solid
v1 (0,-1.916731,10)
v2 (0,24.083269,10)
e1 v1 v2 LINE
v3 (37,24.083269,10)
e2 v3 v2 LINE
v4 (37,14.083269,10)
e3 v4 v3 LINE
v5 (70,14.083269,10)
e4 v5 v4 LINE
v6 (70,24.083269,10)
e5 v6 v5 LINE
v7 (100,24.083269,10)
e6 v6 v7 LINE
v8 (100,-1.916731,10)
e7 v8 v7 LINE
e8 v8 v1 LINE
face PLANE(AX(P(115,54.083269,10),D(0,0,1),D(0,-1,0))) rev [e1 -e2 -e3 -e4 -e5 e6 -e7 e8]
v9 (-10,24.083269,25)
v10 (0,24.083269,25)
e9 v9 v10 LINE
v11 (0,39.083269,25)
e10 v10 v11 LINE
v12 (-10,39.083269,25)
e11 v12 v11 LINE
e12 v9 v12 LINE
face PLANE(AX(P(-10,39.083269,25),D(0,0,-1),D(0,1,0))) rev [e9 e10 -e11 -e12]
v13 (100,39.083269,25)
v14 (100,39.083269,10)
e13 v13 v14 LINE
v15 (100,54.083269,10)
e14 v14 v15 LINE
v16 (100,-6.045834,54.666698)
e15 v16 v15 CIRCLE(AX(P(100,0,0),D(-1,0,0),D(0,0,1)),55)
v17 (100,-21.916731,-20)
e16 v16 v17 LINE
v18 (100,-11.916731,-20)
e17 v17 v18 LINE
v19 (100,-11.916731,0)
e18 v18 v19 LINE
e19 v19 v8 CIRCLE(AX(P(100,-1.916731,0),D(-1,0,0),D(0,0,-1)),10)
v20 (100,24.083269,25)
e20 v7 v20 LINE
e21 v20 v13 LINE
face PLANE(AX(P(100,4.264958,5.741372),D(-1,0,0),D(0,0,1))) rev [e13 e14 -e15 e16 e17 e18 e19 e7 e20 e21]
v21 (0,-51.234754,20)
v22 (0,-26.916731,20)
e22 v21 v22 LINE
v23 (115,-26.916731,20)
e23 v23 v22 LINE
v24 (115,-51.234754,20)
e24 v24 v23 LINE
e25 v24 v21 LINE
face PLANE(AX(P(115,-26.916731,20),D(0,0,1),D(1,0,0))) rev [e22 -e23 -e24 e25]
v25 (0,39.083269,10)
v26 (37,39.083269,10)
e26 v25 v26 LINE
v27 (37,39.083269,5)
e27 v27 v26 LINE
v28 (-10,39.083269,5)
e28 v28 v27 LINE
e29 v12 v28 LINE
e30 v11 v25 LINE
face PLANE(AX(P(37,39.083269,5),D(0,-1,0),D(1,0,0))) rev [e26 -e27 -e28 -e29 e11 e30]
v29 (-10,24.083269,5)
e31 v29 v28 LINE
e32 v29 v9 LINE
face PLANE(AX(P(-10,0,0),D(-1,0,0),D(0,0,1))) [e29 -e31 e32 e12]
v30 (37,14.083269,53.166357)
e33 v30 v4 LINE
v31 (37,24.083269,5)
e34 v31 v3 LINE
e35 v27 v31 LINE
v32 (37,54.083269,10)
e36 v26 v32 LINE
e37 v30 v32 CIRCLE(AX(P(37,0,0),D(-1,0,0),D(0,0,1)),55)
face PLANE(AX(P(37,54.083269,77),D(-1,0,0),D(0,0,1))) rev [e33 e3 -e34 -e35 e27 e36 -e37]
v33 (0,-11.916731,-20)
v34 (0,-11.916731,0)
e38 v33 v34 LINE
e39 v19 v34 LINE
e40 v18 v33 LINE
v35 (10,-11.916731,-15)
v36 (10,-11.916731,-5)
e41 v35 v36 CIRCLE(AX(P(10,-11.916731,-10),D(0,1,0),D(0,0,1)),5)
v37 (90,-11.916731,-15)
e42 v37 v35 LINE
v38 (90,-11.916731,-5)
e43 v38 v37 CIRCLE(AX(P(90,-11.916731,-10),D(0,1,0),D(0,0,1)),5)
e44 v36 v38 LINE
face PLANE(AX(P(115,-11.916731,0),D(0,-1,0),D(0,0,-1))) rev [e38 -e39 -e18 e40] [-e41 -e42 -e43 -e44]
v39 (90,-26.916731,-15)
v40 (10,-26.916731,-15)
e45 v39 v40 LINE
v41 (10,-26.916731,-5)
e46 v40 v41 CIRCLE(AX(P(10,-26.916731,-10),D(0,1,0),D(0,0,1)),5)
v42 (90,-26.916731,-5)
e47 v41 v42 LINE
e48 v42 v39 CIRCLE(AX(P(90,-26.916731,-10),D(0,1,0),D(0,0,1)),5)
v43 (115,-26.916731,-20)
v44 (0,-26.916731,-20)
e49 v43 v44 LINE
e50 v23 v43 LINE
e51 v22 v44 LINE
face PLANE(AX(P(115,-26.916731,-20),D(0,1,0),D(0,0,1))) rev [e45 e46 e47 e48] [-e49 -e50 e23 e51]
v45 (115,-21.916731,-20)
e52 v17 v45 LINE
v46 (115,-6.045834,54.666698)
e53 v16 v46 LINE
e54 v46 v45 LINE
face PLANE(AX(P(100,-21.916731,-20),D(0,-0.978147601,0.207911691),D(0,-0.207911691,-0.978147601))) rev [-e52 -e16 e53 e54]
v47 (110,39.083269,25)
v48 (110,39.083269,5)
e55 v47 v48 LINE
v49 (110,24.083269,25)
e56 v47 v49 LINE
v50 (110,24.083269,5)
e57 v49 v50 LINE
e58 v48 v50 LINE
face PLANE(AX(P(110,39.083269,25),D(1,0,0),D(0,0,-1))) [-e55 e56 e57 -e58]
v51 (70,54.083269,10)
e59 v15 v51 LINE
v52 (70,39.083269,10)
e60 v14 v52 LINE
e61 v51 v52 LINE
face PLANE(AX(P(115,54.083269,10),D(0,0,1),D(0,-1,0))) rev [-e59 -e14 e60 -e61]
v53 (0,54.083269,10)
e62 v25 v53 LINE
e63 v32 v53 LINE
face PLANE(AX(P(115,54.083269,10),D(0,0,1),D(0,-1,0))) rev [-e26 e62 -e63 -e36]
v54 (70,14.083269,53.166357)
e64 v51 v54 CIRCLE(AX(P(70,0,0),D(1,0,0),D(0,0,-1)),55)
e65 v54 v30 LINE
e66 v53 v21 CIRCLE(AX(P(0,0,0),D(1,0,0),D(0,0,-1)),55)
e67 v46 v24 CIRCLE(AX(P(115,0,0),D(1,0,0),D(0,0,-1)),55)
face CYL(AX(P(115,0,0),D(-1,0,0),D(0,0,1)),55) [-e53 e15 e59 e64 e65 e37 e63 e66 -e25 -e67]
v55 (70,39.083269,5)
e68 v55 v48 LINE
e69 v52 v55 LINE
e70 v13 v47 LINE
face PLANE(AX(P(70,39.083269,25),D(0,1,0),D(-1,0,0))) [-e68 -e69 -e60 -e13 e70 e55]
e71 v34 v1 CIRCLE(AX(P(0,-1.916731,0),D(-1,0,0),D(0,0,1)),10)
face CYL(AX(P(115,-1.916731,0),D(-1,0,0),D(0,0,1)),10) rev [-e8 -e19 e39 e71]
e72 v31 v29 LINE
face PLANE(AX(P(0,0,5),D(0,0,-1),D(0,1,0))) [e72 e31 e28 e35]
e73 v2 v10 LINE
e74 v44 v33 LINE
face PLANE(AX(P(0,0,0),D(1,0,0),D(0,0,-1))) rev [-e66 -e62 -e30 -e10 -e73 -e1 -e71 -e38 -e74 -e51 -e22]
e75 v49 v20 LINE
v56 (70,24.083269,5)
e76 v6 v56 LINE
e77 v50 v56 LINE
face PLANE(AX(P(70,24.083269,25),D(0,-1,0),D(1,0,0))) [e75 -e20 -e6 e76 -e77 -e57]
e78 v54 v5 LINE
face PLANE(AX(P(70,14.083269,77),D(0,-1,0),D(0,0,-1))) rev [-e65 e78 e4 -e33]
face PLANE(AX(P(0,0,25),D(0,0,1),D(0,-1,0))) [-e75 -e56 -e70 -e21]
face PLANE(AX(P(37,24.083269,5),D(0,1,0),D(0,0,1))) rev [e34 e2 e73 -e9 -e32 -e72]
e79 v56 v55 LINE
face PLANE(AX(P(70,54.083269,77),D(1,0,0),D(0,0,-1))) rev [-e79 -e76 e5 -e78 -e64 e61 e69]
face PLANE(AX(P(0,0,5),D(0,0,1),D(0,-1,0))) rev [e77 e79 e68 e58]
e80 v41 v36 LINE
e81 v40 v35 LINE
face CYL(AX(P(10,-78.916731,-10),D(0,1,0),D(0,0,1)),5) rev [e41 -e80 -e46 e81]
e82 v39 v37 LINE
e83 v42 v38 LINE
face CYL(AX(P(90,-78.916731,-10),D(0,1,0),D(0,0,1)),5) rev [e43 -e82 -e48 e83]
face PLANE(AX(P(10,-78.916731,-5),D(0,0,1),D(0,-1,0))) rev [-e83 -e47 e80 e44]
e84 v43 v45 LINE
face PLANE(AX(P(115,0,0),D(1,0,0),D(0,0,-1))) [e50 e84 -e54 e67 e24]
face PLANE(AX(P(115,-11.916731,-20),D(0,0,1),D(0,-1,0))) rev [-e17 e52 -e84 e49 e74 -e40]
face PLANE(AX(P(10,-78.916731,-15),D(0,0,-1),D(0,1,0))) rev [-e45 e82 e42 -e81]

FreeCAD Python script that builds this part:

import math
import FreeCAD as App
import Part
import Sketcher
from FreeCAD import Vector
Q = App.Units.Quantity


def add_polygon(sketch, points):
    """Adds a closed chain of lines whose ends are joined by coincident constraints."""
    first, n = sketch.GeometryCount, len(points)
    for a, b in zip(points, points[1:] + points[:1]):
        sketch.addGeometry(Part.LineSegment(App.Vector(*a, 0), App.Vector(*b, 0)), False)
    for i in range(n):
        sketch.addConstraint(Sketcher.Constraint("Coincident", first + i, 2, first + (i + 1) % n, 1))

doc = App.newDocument("Part")
params = doc.addObject("Spreadsheet::Sheet", "Params")
for row, (alias, value) in enumerate([
    ("sketch1_radius", "55 mm"),
    ("sketch1_radius2", "10 mm"),
    ("sketch1_width", "56 mm"),
    ("sketch1_width2", "15 mm"),
    ("sketch1_height", "40 mm"),
    ("pad1_length", "115 mm"),
    ("sketch2_radius", "10 mm"),
    ("sketch2_radius2", "50 mm"),
    ("sketch2_width", "10 mm"),
    ("sketch2_width2", "56 mm"),
    ("sketch2_height", "20 mm"),
    ("pocket1_length", "15 mm"),
    ("sketch3_radius", "5 mm"),
    ("sketch3_width", "80 mm"),
    ("pocket2_length", "67 mm"),
    ("sketch4_width", "33 mm"),
    ("sketch4_height", "40 mm"),
    ("pocket3_length", "67 mm"),
    ("sketch5_width", "40 mm"),
    ("sketch5_height", "15 mm"),
    ("pad2_length", "5 mm"),
    ("sketch6_width", "15 mm"),
    ("pad3_length", "10 mm"),
    ("sketch7_width", "7 mm"),
    ("sketch7_height", "15 mm"),
    ("pad4_length", "5 mm"),
    ("sketch8_width", "40 mm"),
    ("sketch8_height", "15 mm"),
    ("pad5_length", "5 mm"),
    ("pad5_length2", "15 mm"),
], start=1):
    params.set(f"A{row}", alias)
    params.set(f"B{row}", "=" + value)
    params.setAlias(f"B{row}", alias)

body = doc.addObject("PartDesign::Body", "Body")

# Sketch on YZ plane
sketch1 = body.newObject("Sketcher::SketchObject", "Sketch")
sketch1.AttachmentSupport = (doc.getObject("YZ_Plane"), [""])
sketch1.MapMode = "FlatFace"
sketch1.addGeometry([
    Part.LineSegment(Vector(-2, 10, 0), Vector(54, 10, 0)),  # 0
    Part.ArcOfCircle(Part.Circle(Vector(0, 0, 0), Vector(0, 0, 1), 55), math.radians(10), math.radians(159)),  # 1
    Part.LineSegment(Vector(-51, 20, 0), Vector(-27, 20, 0)),  # 2
    Part.LineSegment(Vector(-27, 20, 0), Vector(-27, -20, 0)),  # 3
    Part.LineSegment(Vector(-27, -20, 0), Vector(-12, -20, 0)),  # 4
    Part.LineSegment(Vector(-12, -20, 0), Vector(-12, 0, 0)),  # 5
    Part.ArcOfCircle(Part.Circle(Vector(-2, 0, 0), Vector(0, 0, 1), 10), math.radians(90), math.radians(180)),  # 6
], False)
sketch1.addConstraint([
    Sketcher.Constraint("Coincident", 0, 2, 1, 1),
    Sketcher.Constraint("Coincident", 1, 2, 2, 1),
    Sketcher.Constraint("Coincident", 2, 2, 3, 1),
    Sketcher.Constraint("Coincident", 3, 2, 4, 1),
    Sketcher.Constraint("Coincident", 4, 2, 5, 1),
    Sketcher.Constraint("Tangent", 5, 2, 6, 2),
    Sketcher.Constraint("Tangent", 6, 1, 0, 1),
    Sketcher.Constraint("Horizontal", 0),
    Sketcher.Constraint("Horizontal", 2),
    Sketcher.Constraint("Vertical", 3),
    Sketcher.Constraint("Horizontal", 4),
    Sketcher.Constraint("Vertical", 5),
    Sketcher.Constraint("Coincident", 1, 3, -1, 1),
    Sketcher.Constraint("PointOnObject", 6, 3, -1),
    Sketcher.Constraint("Radius", 1, Q("55 mm")),
    Sketcher.Constraint("Radius", 6, Q("10 mm")),
    Sketcher.Constraint("DistanceX", 0, 1, 0, 2, Q("56 mm")),
    Sketcher.Constraint("DistanceX", 4, 1, 4, 2, Q("15 mm")),
    Sketcher.Constraint("DistanceY", 3, 2, 3, 1, Q("40 mm")),
    Sketcher.Constraint("DistanceY", 5, 1, 5, 2, Q("20 mm")),
])
sketch1.setExpression("Constraints[14]", "Params.sketch1_radius")
sketch1.setExpression("Constraints[15]", "Params.sketch1_radius2")
sketch1.setExpression("Constraints[16]", "Params.sketch1_width")
sketch1.setExpression("Constraints[17]", "Params.sketch1_width2")
sketch1.setExpression("Constraints[18]", "Params.sketch1_height")
pad1 = body.newObject("PartDesign::Pad", "Pad")
pad1.Profile = sketch1
pad1.setExpression("Length", "Params.pad1_length")

# Sketch on YZ plane
sketch2 = body.newObject("Sketcher::SketchObject", "Sketch001")
sketch2.AttachmentSupport = (doc.getObject("YZ_Plane"), [""])
sketch2.MapMode = "FlatFace"
sketch2.AttachmentOffset = App.Placement(Vector(0, 0, 100), App.Rotation())
sketch2.addGeometry([
    Part.LineSegment(Vector(-6, 55, 0), Vector(-22, -20, 0)),  # 0
    Part.LineSegment(Vector(-22, -20, 0), Vector(-12, -20, 0)),  # 1
    Part.LineSegment(Vector(-12, -20, 0), Vector(-12, 0, 0)),  # 2
    Part.ArcOfCircle(Part.Circle(Vector(-2, 0, 0), Vector(0, 0, 1), 10), math.radians(90), math.radians(180)),  # 3
    Part.LineSegment(Vector(-2, 10, 0), Vector(54, 10, 0)),  # 4
    Part.ArcOfCircle(Part.Circle(Vector(4, 6, 0), Vector(0, 0, 1), 50), math.radians(5), math.radians(102)),  # 5
], False)
sketch2.addConstraint([
    Sketcher.Constraint("Coincident", 0, 2, 1, 1),
    Sketcher.Constraint("Coincident", 1, 2, 2, 1),
    Sketcher.Constraint("Tangent", 2, 2, 3, 2),
    Sketcher.Constraint("Tangent", 3, 1, 4, 1),
    Sketcher.Constraint("Coincident", 4, 2, 5, 1),
    Sketcher.Constraint("Coincident", 5, 2, 0, 1),
    Sketcher.Constraint("Horizontal", 1),
    Sketcher.Constraint("Vertical", 2),
    Sketcher.Constraint("Horizontal", 4),
    Sketcher.Constraint("PointOnObject", 3, 3, -1),
    Sketcher.Constraint("Radius", 3, Q("10 mm")),
    Sketcher.Constraint("Radius", 5, Q("50 mm")),
    Sketcher.Constraint("DistanceX", 1, 1, 1, 2, Q("10 mm")),
    Sketcher.Constraint("DistanceX", 4, 1, 4, 2, Q("56 mm")),
    Sketcher.Constraint("DistanceY", 2, 1, 2, 2, Q("20 mm")),
    Sketcher.Constraint("Angle", 0, Q("-102 deg")),
    Sketcher.Constraint("DistanceY", -1, 1, 5, 2, Q("54.666698 mm")),
    Sketcher.Constraint("DistanceX", 3, 3, -1, 1, Q("1.916731 mm")),
])
sketch2.setExpression("Constraints[10]", "Params.sketch2_radius")
sketch2.setExpression("Constraints[11]", "Params.sketch2_radius2")
sketch2.setExpression("Constraints[12]", "Params.sketch2_width")
sketch2.setExpression("Constraints[13]", "Params.sketch2_width2")
sketch2.setExpression("Constraints[14]", "Params.sketch2_height")
pocket1 = body.newObject("PartDesign::Pocket", "Pocket")
pocket1.Profile = sketch2
pocket1.setExpression("Length", "Params.pocket1_length")
pocket1.Reversed = True

# Sketch on XZ plane
sketch3 = body.newObject("Sketcher::SketchObject", "Sketch002")
sketch3.AttachmentSupport = (doc.getObject("XZ_Plane"), [""])
sketch3.MapMode = "FlatFace"
sketch3.AttachmentOffset = App.Placement(Vector(0, 0, 11.916731), App.Rotation())
sketch3.addGeometry([
    Part.LineSegment(Vector(90, -15, 0), Vector(10, -15, 0)),
    Part.ArcOfCircle(Part.Circle(Vector(10, -10, 0), Vector(0, 0, 1), 5), math.radians(90), math.radians(270)),
    Part.LineSegment(Vector(10, -5, 0), Vector(90, -5, 0)),
    Part.ArcOfCircle(Part.Circle(Vector(90, -10, 0), Vector(0, 0, 1), 5), math.radians(-90), math.radians(90)),
], False)
sketch3.addConstraint([
    Sketcher.Constraint("Tangent", 0, 2, 1, 2),
    Sketcher.Constraint("Tangent", 1, 1, 2, 1),
    Sketcher.Constraint("Tangent", 2, 2, 3, 2),
    Sketcher.Constraint("Tangent", 3, 1, 0, 1),
    Sketcher.Constraint("Horizontal", 0),
    Sketcher.Constraint("Horizontal", 2),
    Sketcher.Constraint("Radius", 1, Q("5 mm")),
    Sketcher.Constraint("DistanceX", 0, 2, 0, 1, Q("80 mm")),
    Sketcher.Constraint("DistanceX", -1, 1, 1, 3, Q("10 mm")),
    Sketcher.Constraint("DistanceY", 1, 3, -1, 1, Q("10 mm")),
])
sketch3.setExpression("Constraints[6]", "Params.sketch3_radius")
sketch3.setExpression("Constraints[7]", "Params.sketch3_width")
pocket2 = body.newObject("PartDesign::Pocket", "Pocket001")
pocket2.Profile = sketch3
pocket2.setExpression("Length", "Params.pocket2_length")
pocket2.Reversed = True

# Sketch on XY plane
sketch4 = body.newObject("Sketcher::SketchObject", "Sketch003")
sketch4.AttachmentSupport = (doc.getObject("XY_Plane"), [""])
sketch4.MapMode = "FlatFace"
sketch4.AttachmentOffset = App.Placement(Vector(0, 0, 10), App.Rotation())
add_polygon(sketch4, [(70, 54), (70, 14), (37, 14), (37, 54)])  # lines 0-3
sketch4.addConstraint([
    Sketcher.Constraint("Vertical", 0),
    Sketcher.Constraint("Horizontal", 1),
    Sketcher.Constraint("Vertical", 2),
    Sketcher.Constraint("Horizontal", 3),
    Sketcher.Constraint("DistanceX", 1, 2, 1, 1, Q("33 mm")),
    Sketcher.Constraint("DistanceY", 0, 2, 0, 1, Q("40 mm")),
    Sketcher.Constraint("DistanceX", -1, 1, 0, 2, Q("70 mm")),
    Sketcher.Constraint("DistanceY", -1, 1, 0, 2, Q("14.083269 mm")),
])
sketch4.setExpression("Constraints[8]", "Params.sketch4_width")
sketch4.setExpression("Constraints[9]", "Params.sketch4_height")
pocket3 = body.newObject("PartDesign::Pocket", "Pocket002")
pocket3.Profile = sketch4
pocket3.setExpression("Length", "Params.pocket3_length")
pocket3.Reversed = True

# Sketch on XY plane
sketch5 = body.newObject("Sketcher::SketchObject", "Sketch004")
sketch5.AttachmentSupport = (doc.getObject("XY_Plane"), [""])
sketch5.MapMode = "FlatFace"
sketch5.AttachmentOffset = App.Placement(Vector(0, 0, 10), App.Rotation())
add_polygon(sketch5, [(37, 39), (37, 24), (-3, 24), (-3, 39)])  # lines 0-3
sketch5.addConstraint([
    Sketcher.Constraint("Vertical", 0),
    Sketcher.Constraint("Horizontal", 1),
    Sketcher.Constraint("Vertical", 2),
    Sketcher.Constraint("Horizontal", 3),
    Sketcher.Constraint("DistanceX", 1, 2, 1, 1, Q("40 mm")),
    Sketcher.Constraint("DistanceY", 0, 2, 0, 1, Q("15 mm")),
    Sketcher.Constraint("DistanceX", -1, 1, 0, 2, Q("37 mm")),
    Sketcher.Constraint("DistanceY", -1, 1, 0, 2, Q("24.083269 mm")),
])
sketch5.setExpression("Constraints[8]", "Params.sketch5_width")
sketch5.setExpression("Constraints[9]", "Params.sketch5_height")
pad2 = body.newObject("PartDesign::Pad", "Pad001")
pad2.Profile = sketch5
pad2.setExpression("Length", "Params.pad2_length")
pad2.Reversed = True

# Sketch on YZ plane
sketch6 = body.newObject("Sketcher::SketchObject", "Sketch005")
sketch6.AttachmentSupport = (doc.getObject("YZ_Plane"), [""])
sketch6.MapMode = "FlatFace"
add_polygon(sketch6, [(39, 10), (24, 10), (24, 25), (39, 25)])  # lines 0-3
sketch6.addConstraint([
    Sketcher.Constraint("Horizontal", 0),
    Sketcher.Constraint("Vertical", 1),
    Sketcher.Constraint("Horizontal", 2),
    Sketcher.Constraint("Vertical", 3),
    Sketcher.Constraint("Equal", 2, 1),
    Sketcher.Constraint("DistanceX", 0, 2, 0, 1, Q("15 mm")),
    Sketcher.Constraint("DistanceY", -1, 1, 0, 2, Q("10 mm")),
    Sketcher.Constraint("DistanceX", -1, 1, 0, 2, Q("24.083269 mm")),
])
sketch6.setExpression("Constraints[9]", "Params.sketch6_width")
pad3 = body.newObject("PartDesign::Pad", "Pad002")
pad3.Profile = sketch6
pad3.setExpression("Length", "Params.pad3_length")
pad3.Reversed = True

# Sketch on XY plane
sketch7 = body.newObject("Sketcher::SketchObject", "Sketch006")
sketch7.AttachmentSupport = (doc.getObject("XY_Plane"), [""])
sketch7.MapMode = "FlatFace"
sketch7.AttachmentOffset = App.Placement(Vector(0, 0, 10), App.Rotation())
add_polygon(sketch7, [(-3, 39), (-3, 24), (-10, 24), (-10, 39)])  # lines 0-3
sketch7.addConstraint([
    Sketcher.Constraint("Vertical", 0),
    Sketcher.Constraint("Horizontal", 1),
    Sketcher.Constraint("Vertical", 2),
    Sketcher.Constraint("Horizontal", 3),
    Sketcher.Constraint("DistanceX", 1, 2, 1, 1, Q("7 mm")),
    Sketcher.Constraint("DistanceY", 0, 2, 0, 1, Q("15 mm")),
    Sketcher.Constraint("DistanceX", 0, 2, -1, 1, Q("3 mm")),
    Sketcher.Constraint("DistanceY", -1, 1, 0, 2, Q("24.083269 mm")),
])
sketch7.setExpression("Constraints[8]", "Params.sketch7_width")
sketch7.setExpression("Constraints[9]", "Params.sketch7_height")
pad4 = body.newObject("PartDesign::Pad", "Pad003")
pad4.Profile = sketch7
pad4.setExpression("Length", "Params.pad4_length")
pad4.Reversed = True

# Sketch on XY plane
sketch8 = body.newObject("Sketcher::SketchObject", "Sketch007")
sketch8.AttachmentSupport = (doc.getObject("XY_Plane"), [""])
sketch8.MapMode = "FlatFace"
sketch8.AttachmentOffset = App.Placement(Vector(0, 0, 10), App.Rotation())
add_polygon(sketch8, [(110, 39), (110, 24), (70, 24), (70, 39)])  # lines 0-3
sketch8.addConstraint([
    Sketcher.Constraint("Vertical", 0),
    Sketcher.Constraint("Horizontal", 1),
    Sketcher.Constraint("Vertical", 2),
    Sketcher.Constraint("Horizontal", 3),
    Sketcher.Constraint("DistanceX", 1, 2, 1, 1, Q("40 mm")),
    Sketcher.Constraint("DistanceY", 0, 2, 0, 1, Q("15 mm")),
    Sketcher.Constraint("DistanceX", -1, 1, 0, 2, Q("110 mm")),
    Sketcher.Constraint("DistanceY", -1, 1, 0, 2, Q("24.083269 mm")),
])
sketch8.setExpression("Constraints[8]", "Params.sketch8_width")
sketch8.setExpression("Constraints[9]", "Params.sketch8_height")
pad5 = body.newObject("PartDesign::Pad", "Pad004")
pad5.Profile = sketch8
pad5.Type = "TwoLengths"
pad5.setExpression("Length", "Params.pad5_length")
pad5.setExpression("Length2", "Params.pad5_length2")
pad5.Reversed = True

doc.recompute()
